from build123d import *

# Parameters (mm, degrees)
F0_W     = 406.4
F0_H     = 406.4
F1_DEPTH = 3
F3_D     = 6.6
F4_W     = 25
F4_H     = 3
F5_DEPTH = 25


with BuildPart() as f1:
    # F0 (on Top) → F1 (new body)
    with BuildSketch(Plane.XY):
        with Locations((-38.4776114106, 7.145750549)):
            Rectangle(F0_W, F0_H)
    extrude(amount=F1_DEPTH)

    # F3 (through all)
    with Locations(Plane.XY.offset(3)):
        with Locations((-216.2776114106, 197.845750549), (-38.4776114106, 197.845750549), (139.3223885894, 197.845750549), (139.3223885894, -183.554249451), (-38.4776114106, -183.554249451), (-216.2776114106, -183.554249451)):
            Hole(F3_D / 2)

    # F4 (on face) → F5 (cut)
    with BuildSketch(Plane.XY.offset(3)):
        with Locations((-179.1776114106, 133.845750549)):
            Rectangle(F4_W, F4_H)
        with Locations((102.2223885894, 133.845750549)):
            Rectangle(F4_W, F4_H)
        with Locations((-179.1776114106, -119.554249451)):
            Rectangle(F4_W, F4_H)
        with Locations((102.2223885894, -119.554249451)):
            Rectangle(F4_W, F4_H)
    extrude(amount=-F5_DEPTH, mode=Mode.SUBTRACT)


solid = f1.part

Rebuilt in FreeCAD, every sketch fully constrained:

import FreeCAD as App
import Part
import Sketcher
from FreeCAD import Vector


def add_polygon(sketch, points):
    """Adds a closed chain of lines whose ends are joined by coincident constraints."""
    first, n = sketch.GeometryCount, len(points)
    for a, b in zip(points, points[1:] + points[:1]):
        sketch.addGeometry(Part.LineSegment(App.Vector(*a, 0), App.Vector(*b, 0)), False)
    for i in range(n):
        sketch.addConstraint(Sketcher.Constraint("Coincident", first + i, 2, first + (i + 1) % n, 1))

doc = App.newDocument("Part")
body = doc.addObject("PartDesign::Body", "Body")

# Sketch on XY plane
sketch1 = body.newObject("Sketcher::SketchObject", "Sketch")
sketch1.AttachmentSupport = (doc.getObject("XY_Plane"), [""])
sketch1.MapMode = "FlatFace"
add_polygon(sketch1, [(-242, 210), (-242, -196), (165, -196), (165, 210)])  # lines 0-3
sketch1.addConstraint(Sketcher.Constraint("Vertical", 0))
sketch1.addConstraint(Sketcher.Constraint("Horizontal", 1))
sketch1.addConstraint(Sketcher.Constraint("Vertical", 2))
sketch1.addConstraint(Sketcher.Constraint("Horizontal", 3))
sketch1.addConstraint(Sketcher.Constraint("Equal", 3, 0))
sketch1.addConstraint(Sketcher.Constraint("DistanceX", 1, 1, 1, 2, 406.4))
sketch1.addConstraint(Sketcher.Constraint("DistanceX", 0, 2, -1, 1, 241.677611))
sketch1.addConstraint(Sketcher.Constraint("DistanceY", 0, 2, -1, 1, 196.054249))
pad1 = body.newObject("PartDesign::Pad", "Pad")
pad1.Profile = sketch1
pad1.Length = 3

# Sketch on XY plane
sketch2 = body.newObject("Sketcher::SketchObject", "Sketch001")
sketch2.AttachmentSupport = (doc.getObject("XY_Plane"), [""])
sketch2.MapMode = "FlatFace"
sketch2.AttachmentOffset = App.Placement(Vector(0, 0, 3), App.Rotation())
sketch2.addGeometry(Part.Circle(Vector(-216.3, 197.8, 0), Vector(0, 0, 1), 3.3), False)
sketch2.addGeometry(Part.Circle(Vector(-38.5, 197.8, 0), Vector(0, 0, 1), 3.3), False)
sketch2.addGeometry(Part.Circle(Vector(139.3, 197.8, 0), Vector(0, 0, 1), 3.3), False)
sketch2.addGeometry(Part.Circle(Vector(139.3, -183.6, 0), Vector(0, 0, 1), 3.3), False)
sketch2.addGeometry(Part.Circle(Vector(-38.5, -183.6, 0), Vector(0, 0, 1), 3.3), False)
sketch2.addGeometry(Part.Circle(Vector(-216.3, -183.6, 0), Vector(0, 0, 1), 3.3), False)
sketch2.addConstraint(Sketcher.Constraint("Equal", 0, 1))
sketch2.addConstraint(Sketcher.Constraint("Equal", 1, 2))
sketch2.addConstraint(Sketcher.Constraint("Equal", 2, 3))
sketch2.addConstraint(Sketcher.Constraint("Equal", 3, 4))
sketch2.addConstraint(Sketcher.Constraint("Equal", 4, 5))
sketch2.addConstraint(Sketcher.Constraint("Horizontal", 0, 3, 1, 3))
sketch2.addConstraint(Sketcher.Constraint("Horizontal", 1, 3, 2, 3))
sketch2.addConstraint(Sketcher.Constraint("Horizontal", 3, 3, 4, 3))
sketch2.addConstraint(Sketcher.Constraint("Horizontal", 4, 3, 5, 3))
sketch2.addConstraint(Sketcher.Constraint("Vertical", 2, 3, 3, 3))
sketch2.addConstraint(Sketcher.Constraint("Vertical", 1, 3, 4, 3))
sketch2.addConstraint(Sketcher.Constraint("Vertical", 0, 3, 5, 3))
sketch2.addConstraint(Sketcher.Constraint("Diameter", 0, 6.6))
sketch2.addConstraint(Sketcher.Constraint("DistanceX", 0, 3, 1, 3, 177.8))
sketch2.addConstraint(Sketcher.Constraint("DistanceX", 1, 3, 2, 3, 177.8))
sketch2.addConstraint(Sketcher.Constraint("DistanceY", 3, 3, 2, 3, 381.4))
sketch2.addConstraint(Sketcher.Constraint("DistanceX", 0, 3, -1, 1, 216.277611))
sketch2.addConstraint(Sketcher.Constraint("DistanceY", -1, 1, 0, 3, 197.845751))
doc.recompute()
hole = body.newObject("PartDesign::Hole", "Hole")
hole.Profile = sketch2
hole.ThreadType = "None"
hole.Diameter = 6.6
hole.DepthType = "ThroughAll"

# Sketch on XY plane
sketch3 = body.newObject("Sketcher::SketchObject", "Sketch002")
sketch3.AttachmentSupport = (doc.getObject("XY_Plane"), [""])
sketch3.MapMode = "FlatFace"
sketch3.AttachmentOffset = App.Placement(Vector(0, 0, 3), App.Rotation())
add_polygon(sketch3, [(-191.7, 135.3), (-191.7, 132.3), (-166.7, 132.3), (-166.7, 135.3)])  # lines 0-3
add_polygon(sketch3, [(89.7, 135.3), (89.7, 132.3), (114.7, 132.3), (114.7, 135.3)])  # lines 4-7
add_polygon(sketch3, [(-191.7, -118.1), (-191.7, -121.1), (-166.7, -121.1), (-166.7, -118.1)])  # lines 8-11
add_polygon(sketch3, [(89.7, -118.1), (89.7, -121.1), (114.7, -121.1), (114.7, -118.1)])  # lines 12-15
sketch3.addConstraint(Sketcher.Constraint("Vertical", 0))
sketch3.addConstraint(Sketcher.Constraint("Horizontal", 1))
sketch3.addConstraint(Sketcher.Constraint("Vertical", 2))
sketch3.addConstraint(Sketcher.Constraint("Horizontal", 3))
sketch3.addConstraint(Sketcher.Constraint("Vertical", 4))
sketch3.addConstraint(Sketcher.Constraint("Horizontal", 5))
sketch3.addConstraint(Sketcher.Constraint("Vertical", 6))
sketch3.addConstraint(Sketcher.Constraint("Horizontal", 7))
sketch3.addConstraint(Sketcher.Constraint("Vertical", 8))
sketch3.addConstraint(Sketcher.Constraint("Horizontal", 9))
sketch3.addConstraint(Sketcher.Constraint("Vertical", 10))
sketch3.addConstraint(Sketcher.Constraint("Horizontal", 11))
sketch3.addConstraint(Sketcher.Constraint("Vertical", 12))
sketch3.addConstraint(Sketcher.Constraint("Horizontal", 13))
sketch3.addConstraint(Sketcher.Constraint("Vertical", 14))
sketch3.addConstraint(Sketcher.Constraint("Horizontal", 15))
sketch3.addConstraint(Sketcher.Constraint("Horizontal", 1, 2, 4, 2))
sketch3.addConstraint(Sketcher.Constraint("Horizontal", 3, 2, 6, 2))
sketch3.addConstraint(Sketcher.Constraint("Horizontal", 9, 2, 12, 2))
sketch3.addConstraint(Sketcher.Constraint("Horizontal", 11, 2, 14, 2))
sketch3.addConstraint(Sketcher.Constraint("Vertical", 3, 2, 8, 2))
sketch3.addConstraint(Sketcher.Constraint("Vertical", 2, 2, 9, 2))
sketch3.addConstraint(Sketcher.Constraint("Vertical", 7, 2, 12, 2))
sketch3.addConstraint(Sketcher.Constraint("Vertical", 6, 2, 13, 2))
sketch3.addConstraint(Sketcher.Constraint("Equal", 3, 5))
sketch3.addConstraint(Sketcher.Constraint("Equal", 6, 8))
sketch3.addConstraint(Sketcher.Constraint("DistanceX", 1, 1, 1, 2, 25.0))
sketch3.addConstraint(Sketcher.Constraint("DistanceY", 0, 2, 0, 1, 3.0))
sketch3.addConstraint(Sketcher.Constraint("DistanceX", 1, 2, 4, 2, 256.4))
sketch3.addConstraint(Sketcher.Constraint("DistanceY", 8, 2, 0, 2, 253.4))
sketch3.addConstraint(Sketcher.Constraint("DistanceX", 0, 2, -1, 1, 191.677611))
sketch3.addConstraint(Sketcher.Constraint("DistanceY", -1, 1, 0, 2, 132.345751))
pocket1 = body.newObject("PartDesign::Pocket", "Pocket")
pocket1.Profile = sketch3
pocket1.Length = 25

doc.recompute()
